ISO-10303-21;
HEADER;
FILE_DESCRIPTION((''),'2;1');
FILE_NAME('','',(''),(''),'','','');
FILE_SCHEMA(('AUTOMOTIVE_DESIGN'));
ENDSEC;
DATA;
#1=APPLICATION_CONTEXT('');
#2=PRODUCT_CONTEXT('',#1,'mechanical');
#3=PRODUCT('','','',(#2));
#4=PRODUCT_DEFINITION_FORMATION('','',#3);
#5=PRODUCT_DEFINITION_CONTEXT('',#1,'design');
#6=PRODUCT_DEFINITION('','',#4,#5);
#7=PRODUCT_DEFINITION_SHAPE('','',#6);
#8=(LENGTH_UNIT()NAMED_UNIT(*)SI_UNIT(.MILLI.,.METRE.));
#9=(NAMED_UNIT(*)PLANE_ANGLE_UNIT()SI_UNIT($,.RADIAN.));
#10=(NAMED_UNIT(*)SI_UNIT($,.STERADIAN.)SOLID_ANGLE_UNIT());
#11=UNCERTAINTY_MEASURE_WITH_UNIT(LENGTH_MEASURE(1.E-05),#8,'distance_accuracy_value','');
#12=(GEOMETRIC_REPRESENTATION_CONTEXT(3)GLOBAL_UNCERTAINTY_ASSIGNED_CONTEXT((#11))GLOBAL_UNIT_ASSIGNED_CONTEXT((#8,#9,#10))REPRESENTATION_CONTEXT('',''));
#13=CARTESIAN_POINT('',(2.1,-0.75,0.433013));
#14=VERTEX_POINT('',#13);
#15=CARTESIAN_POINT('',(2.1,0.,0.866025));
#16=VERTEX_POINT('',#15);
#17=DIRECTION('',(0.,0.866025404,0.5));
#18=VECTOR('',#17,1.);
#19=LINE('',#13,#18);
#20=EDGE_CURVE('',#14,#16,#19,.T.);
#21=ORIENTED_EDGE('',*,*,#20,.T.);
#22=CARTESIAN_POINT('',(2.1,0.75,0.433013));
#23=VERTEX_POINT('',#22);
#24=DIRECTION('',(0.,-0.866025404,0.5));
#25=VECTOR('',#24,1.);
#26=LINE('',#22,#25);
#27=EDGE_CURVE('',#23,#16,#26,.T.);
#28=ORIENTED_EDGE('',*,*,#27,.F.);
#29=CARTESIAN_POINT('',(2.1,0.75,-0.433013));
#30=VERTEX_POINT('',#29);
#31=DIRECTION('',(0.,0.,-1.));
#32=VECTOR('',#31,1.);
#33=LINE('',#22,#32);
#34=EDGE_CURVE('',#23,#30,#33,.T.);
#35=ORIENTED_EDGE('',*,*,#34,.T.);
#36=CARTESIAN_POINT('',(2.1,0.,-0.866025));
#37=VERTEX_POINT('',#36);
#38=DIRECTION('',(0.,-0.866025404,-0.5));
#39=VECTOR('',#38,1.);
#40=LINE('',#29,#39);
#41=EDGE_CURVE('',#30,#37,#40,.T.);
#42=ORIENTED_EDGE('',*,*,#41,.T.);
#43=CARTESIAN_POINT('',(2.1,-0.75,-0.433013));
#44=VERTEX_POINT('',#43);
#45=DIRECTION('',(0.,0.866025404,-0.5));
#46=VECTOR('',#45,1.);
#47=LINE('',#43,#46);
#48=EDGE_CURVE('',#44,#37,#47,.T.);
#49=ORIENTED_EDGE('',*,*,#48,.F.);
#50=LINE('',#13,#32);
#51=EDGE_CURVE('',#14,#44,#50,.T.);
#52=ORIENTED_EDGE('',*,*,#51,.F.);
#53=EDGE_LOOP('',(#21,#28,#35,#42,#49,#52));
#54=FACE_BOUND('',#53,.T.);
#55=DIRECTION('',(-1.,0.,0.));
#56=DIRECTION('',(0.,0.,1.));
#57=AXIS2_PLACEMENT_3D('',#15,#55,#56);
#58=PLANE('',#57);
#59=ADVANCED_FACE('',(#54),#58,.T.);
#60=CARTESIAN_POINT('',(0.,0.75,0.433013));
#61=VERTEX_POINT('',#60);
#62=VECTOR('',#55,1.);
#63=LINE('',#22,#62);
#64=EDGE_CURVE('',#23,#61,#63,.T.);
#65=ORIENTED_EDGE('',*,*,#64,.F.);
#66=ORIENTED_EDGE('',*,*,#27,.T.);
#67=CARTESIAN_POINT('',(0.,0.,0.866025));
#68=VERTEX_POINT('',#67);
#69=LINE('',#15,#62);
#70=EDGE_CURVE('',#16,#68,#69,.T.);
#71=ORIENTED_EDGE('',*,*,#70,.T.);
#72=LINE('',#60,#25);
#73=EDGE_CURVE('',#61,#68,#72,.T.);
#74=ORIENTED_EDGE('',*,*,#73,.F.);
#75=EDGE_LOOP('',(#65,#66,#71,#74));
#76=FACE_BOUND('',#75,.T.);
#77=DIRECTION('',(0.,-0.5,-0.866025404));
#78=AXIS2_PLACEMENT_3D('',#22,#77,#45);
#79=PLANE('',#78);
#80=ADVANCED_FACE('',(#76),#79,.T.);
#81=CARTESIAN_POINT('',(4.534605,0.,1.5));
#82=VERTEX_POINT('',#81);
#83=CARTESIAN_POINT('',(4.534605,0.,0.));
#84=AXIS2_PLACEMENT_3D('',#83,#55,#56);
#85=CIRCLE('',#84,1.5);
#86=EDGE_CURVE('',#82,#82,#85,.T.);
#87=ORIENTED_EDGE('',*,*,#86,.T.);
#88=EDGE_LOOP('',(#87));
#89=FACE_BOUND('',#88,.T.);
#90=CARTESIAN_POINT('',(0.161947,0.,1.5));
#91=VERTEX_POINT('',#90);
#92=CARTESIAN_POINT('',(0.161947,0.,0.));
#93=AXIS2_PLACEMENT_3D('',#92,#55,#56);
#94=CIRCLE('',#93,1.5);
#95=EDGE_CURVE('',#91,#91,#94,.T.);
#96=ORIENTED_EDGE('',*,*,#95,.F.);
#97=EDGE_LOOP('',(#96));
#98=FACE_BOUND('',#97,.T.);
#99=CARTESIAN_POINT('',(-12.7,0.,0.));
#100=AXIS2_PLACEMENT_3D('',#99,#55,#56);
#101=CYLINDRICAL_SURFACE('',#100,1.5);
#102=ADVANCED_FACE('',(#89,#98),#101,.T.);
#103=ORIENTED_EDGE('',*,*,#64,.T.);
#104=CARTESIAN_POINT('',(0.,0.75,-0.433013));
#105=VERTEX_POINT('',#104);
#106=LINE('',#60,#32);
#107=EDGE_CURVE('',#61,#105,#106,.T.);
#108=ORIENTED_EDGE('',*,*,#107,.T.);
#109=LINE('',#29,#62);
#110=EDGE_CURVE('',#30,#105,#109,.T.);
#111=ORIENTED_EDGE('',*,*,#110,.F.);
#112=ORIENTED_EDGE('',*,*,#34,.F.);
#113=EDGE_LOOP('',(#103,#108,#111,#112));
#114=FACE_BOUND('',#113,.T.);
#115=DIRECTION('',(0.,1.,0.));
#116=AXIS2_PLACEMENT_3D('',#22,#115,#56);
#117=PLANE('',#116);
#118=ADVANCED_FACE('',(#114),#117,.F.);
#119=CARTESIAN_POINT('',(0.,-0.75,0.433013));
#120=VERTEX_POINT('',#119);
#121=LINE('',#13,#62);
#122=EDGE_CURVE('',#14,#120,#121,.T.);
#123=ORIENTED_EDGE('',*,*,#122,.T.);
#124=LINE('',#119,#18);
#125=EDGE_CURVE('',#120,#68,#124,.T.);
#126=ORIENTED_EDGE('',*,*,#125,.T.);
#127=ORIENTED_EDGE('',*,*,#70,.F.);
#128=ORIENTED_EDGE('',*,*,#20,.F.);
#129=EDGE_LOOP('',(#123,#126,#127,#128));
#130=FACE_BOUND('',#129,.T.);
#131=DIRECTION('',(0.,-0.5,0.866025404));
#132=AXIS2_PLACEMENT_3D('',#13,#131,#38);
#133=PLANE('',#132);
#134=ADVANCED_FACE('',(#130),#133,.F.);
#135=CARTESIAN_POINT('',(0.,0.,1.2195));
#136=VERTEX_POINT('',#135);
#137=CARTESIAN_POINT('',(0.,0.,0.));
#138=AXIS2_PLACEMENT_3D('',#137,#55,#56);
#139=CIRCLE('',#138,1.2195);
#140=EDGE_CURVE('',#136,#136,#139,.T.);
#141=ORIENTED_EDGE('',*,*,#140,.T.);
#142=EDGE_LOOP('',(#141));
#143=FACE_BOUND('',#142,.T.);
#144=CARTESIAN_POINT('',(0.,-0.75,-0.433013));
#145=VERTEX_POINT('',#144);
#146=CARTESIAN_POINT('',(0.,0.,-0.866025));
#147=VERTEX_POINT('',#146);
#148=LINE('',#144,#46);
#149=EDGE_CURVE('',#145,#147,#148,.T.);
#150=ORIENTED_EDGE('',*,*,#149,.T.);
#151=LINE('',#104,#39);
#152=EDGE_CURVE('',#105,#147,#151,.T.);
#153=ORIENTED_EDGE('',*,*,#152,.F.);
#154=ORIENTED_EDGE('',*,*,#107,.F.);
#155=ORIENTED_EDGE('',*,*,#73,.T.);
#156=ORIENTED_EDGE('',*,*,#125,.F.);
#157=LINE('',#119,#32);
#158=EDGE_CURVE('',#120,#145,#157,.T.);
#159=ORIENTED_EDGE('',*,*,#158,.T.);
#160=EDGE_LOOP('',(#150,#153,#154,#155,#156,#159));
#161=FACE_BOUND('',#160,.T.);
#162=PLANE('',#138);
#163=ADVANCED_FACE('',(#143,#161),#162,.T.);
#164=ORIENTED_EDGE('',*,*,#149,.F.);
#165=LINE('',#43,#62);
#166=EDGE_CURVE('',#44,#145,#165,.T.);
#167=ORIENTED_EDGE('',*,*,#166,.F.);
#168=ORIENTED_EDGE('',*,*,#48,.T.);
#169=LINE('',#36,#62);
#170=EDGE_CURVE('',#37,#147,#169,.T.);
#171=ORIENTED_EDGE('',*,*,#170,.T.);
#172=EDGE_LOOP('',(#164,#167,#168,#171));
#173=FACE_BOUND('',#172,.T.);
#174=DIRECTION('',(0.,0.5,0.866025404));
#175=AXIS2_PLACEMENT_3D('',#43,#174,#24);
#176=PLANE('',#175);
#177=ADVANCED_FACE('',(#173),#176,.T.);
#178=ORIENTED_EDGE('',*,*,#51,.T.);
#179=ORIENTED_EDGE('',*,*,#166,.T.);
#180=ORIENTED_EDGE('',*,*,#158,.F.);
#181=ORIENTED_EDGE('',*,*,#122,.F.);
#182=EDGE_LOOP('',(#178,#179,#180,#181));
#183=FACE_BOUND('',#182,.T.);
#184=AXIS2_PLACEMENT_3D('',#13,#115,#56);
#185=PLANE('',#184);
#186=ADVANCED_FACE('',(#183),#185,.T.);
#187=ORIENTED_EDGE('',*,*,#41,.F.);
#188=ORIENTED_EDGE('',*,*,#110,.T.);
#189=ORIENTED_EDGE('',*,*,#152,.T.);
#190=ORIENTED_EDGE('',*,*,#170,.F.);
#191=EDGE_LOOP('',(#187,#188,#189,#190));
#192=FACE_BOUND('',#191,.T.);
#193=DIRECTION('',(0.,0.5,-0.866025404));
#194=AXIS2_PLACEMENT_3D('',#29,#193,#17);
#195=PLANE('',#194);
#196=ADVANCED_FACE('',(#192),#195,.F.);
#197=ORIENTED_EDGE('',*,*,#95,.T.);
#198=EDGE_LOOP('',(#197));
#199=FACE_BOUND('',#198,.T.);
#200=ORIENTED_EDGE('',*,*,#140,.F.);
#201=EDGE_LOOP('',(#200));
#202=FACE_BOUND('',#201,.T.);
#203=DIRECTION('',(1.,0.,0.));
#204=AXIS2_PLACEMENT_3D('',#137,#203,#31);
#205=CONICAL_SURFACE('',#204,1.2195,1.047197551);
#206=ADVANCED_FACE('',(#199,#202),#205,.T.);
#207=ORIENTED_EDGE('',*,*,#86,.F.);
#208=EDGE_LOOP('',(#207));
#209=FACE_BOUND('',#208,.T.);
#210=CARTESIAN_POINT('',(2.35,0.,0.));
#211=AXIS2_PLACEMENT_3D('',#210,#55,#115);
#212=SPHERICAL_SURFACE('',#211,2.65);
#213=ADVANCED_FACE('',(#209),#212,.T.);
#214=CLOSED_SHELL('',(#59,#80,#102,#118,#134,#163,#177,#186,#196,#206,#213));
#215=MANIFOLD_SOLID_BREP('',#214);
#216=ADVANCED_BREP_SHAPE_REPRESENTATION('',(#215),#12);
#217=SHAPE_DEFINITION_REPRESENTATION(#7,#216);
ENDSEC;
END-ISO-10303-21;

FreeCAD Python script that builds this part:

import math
import FreeCAD as App
import Part
import Sketcher
Q = App.Units.Quantity


def add_polygon(sketch, points):
    """Adds a closed chain of lines whose ends are joined by coincident constraints."""
    first, n = sketch.GeometryCount, len(points)
    for a, b in zip(points, points[1:] + points[:1]):
        sketch.addGeometry(Part.LineSegment(App.Vector(*a, 0), App.Vector(*b, 0)), False)
    for i in range(n):
        sketch.addConstraint(Sketcher.Constraint("Coincident", first + i, 2, first + (i + 1) % n, 1))

doc = App.newDocument("Part")
body = doc.addObject("PartDesign::Body", "Body")

sketch1 = body.newObject("Sketcher::SketchObject", "Sketch")
sketch1.AttachmentSupport = (doc.getObject("XY_Plane"), [""])
sketch1.MapMode = "FlatFace"
sketch1.addGeometry(Part.LineSegment(App.Vector(0, 1.22, 0), App.Vector(0, 0, 0)), False)
sketch1.addGeometry(Part.LineSegment(App.Vector(0, 0, 0), App.Vector(5, 0, 0)), False)
sketch1.addGeometry(Part.ArcOfCircle(Part.Circle(App.Vector(2.35, 0, 0), App.Vector(0, 0, 1), 2.65), math.radians(0), math.radians(34)), False)
sketch1.addGeometry(Part.LineSegment(App.Vector(4.53, 1.5, 0), App.Vector(0.16, 1.5, 0)), False)
sketch1.addGeometry(Part.LineSegment(App.Vector(0.16, 1.5, 0), App.Vector(0, 1.22, 0)), False)
sketch1.addConstraint(Sketcher.Constraint("Coincident", 0, 2, 1, 1))
sketch1.addConstraint(Sketcher.Constraint("Coincident", 1, 2, 2, 1))
sketch1.addConstraint(Sketcher.Constraint("Coincident", 2, 2, 3, 1))
sketch1.addConstraint(Sketcher.Constraint("Coincident", 3, 2, 4, 1))
sketch1.addConstraint(Sketcher.Constraint("Coincident", 4, 2, 0, 1))
sketch1.addConstraint(Sketcher.Constraint("Vertical", 0))
sketch1.addConstraint(Sketcher.Constraint("Horizontal", 1))
sketch1.addConstraint(Sketcher.Constraint("Horizontal", 3))
sketch1.addConstraint(Sketcher.Constraint("Coincident", 0, 2, -1, 1))
sketch1.addConstraint(Sketcher.Constraint("PointOnObject", 2, 3, -1))
sketch1.addConstraint(Sketcher.Constraint("DistanceX", 1, 1, 1, 2, 5.0))
sketch1.addConstraint(Sketcher.Constraint("Angle", 4, Q("-120 deg")))
sketch1.addConstraint(Sketcher.Constraint("Radius", 2, 2.65))
sketch1.addConstraint(Sketcher.Constraint("DistanceY", -1, 1, 2, 2, 1.5))
sketch1.addConstraint(Sketcher.Constraint("DistanceY", 0, 2, 0, 1, 1.2195))
revolution = body.newObject("PartDesign::Revolution", "Revolution")
revolution.Profile = sketch1
revolution.ReferenceAxis = (sketch1, ["H_Axis"])
revolution.Angle = 360

sketch2 = body.newObject("Sketcher::SketchObject", "Sketch001")
sketch2.AttachmentSupport = (doc.getObject("YZ_Plane"), [""])
sketch2.MapMode = "FlatFace"
add_polygon(sketch2, [(0.8, 0.4), (0.8, -0.4), (0, -0.9), (-0.8, -0.4), (-0.8, 0.4), (0, 0.9)])
sketch2.addConstraint(Sketcher.Constraint("Vertical", 0))
sketch2.addConstraint(Sketcher.Constraint("Vertical", 3))
sketch2.addConstraint(Sketcher.Constraint("Symmetric", 0, 2, 3, 2, -1, 1))
sketch2.addConstraint(Sketcher.Constraint("Symmetric", 1, 2, 4, 2, -1, 1))
sketch2.addConstraint(Sketcher.Constraint("PointOnObject", 1, 2, -2))
sketch2.addConstraint(Sketcher.Constraint("Parallel", 2, 5))
sketch2.addConstraint(Sketcher.Constraint("Horizontal", 0, 2, 2, 2))
sketch2.addConstraint(Sketcher.Constraint("Angle", 1, Q("-150 deg")))
sketch2.addConstraint(Sketcher.Constraint("DistanceX", 2, 2, 0, 2, 1.5))
sketch2.addConstraint(Sketcher.Constraint("DistanceY", 0, 2, 0, 1, 0.866025))
pocket1 = body.newObject("PartDesign::Pocket", "Pocket")
pocket1.Profile = sketch2
pocket1.Length = 2.1
pocket1.Reversed = True

doc.recompute()
